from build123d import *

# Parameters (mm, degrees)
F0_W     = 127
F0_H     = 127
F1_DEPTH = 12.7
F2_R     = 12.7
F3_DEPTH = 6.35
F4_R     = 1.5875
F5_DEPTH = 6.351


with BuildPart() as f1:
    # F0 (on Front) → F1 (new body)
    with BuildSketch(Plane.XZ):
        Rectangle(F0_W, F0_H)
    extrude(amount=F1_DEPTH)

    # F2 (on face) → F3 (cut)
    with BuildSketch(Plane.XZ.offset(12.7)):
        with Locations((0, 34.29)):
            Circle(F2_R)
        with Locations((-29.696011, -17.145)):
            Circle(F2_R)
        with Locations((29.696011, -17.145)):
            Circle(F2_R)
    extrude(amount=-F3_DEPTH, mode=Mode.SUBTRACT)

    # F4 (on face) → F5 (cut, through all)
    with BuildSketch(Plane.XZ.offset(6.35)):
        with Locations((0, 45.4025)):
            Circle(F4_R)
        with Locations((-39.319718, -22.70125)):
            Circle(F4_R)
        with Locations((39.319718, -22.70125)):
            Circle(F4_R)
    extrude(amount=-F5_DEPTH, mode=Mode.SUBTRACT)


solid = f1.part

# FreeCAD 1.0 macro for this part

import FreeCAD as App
import Part
import Sketcher

V = App.Vector
Q = App.Units.Quantity


def add_polygon(sketch, points):
    """Adds a closed chain of lines whose ends are joined by coincident constraints."""
    first, n = sketch.GeometryCount, len(points)
    for a, b in zip(points, points[1:] + points[:1]):
        sketch.addGeometry(Part.LineSegment(App.Vector(*a, 0), App.Vector(*b, 0)), False)
    for i in range(n):
        sketch.addConstraint(Sketcher.Constraint("Coincident", first + i, 2, first + (i + 1) % n, 1))

doc = App.newDocument("Part")
params = doc.addObject("Spreadsheet::Sheet", "Params")
for row, (alias, value) in enumerate([
    ("sketch1_width", "5 in"),
    ("pad1_length", "0.5 in"),
    ("sketch2_diameter", "1 in"),
    ("pocket1_length", "0.25 in"),
    ("sketch3_diameter", "0.125 in"),
], start=1):
    params.set(f"A{row}", alias)
    params.set(f"B{row}", "=" + value)
    params.setAlias(f"B{row}", alias)

body = doc.addObject("PartDesign::Body", "Body")

# Sketch on XZ plane
sketch1 = body.newObject("Sketcher::SketchObject", "Sketch")
sketch1.AttachmentSupport = (doc.getObject("XZ_Plane"), [""])
sketch1.MapMode = "FlatFace"
add_polygon(sketch1, [(-63.5, 63.5), (-63.5, -63.5), (63.5, -63.5), (63.5, 63.5)])  # lines 0-3
sketch1.addConstraint([
    Sketcher.Constraint("Vertical", 0),
    Sketcher.Constraint("Horizontal", 1),
    Sketcher.Constraint("Vertical", 2),
    Sketcher.Constraint("Horizontal", 3),
    Sketcher.Constraint("Symmetric", 0, 2, 2, 2, -1, 1),
    Sketcher.Constraint("Equal", 3, 0),
    Sketcher.Constraint("DistanceX", 1, 1, 1, 2, Q("5 in")),
])
sketch1.setExpression("Constraints[10]", "Params.sketch1_width")
pad1 = body.newObject("PartDesign::Pad", "Pad")
pad1.Profile = sketch1
pad1.setExpression("Length", "Params.pad1_length")

# Sketch on XZ plane
sketch2 = body.newObject("Sketcher::SketchObject", "Sketch001")
sketch2.AttachmentSupport = (doc.getObject("XZ_Plane"), [""])
sketch2.MapMode = "FlatFace"
sketch2.AttachmentOffset = App.Placement(V(0, 0, 0.5 * 25.4), App.Rotation())
sketch2.addGeometry([
    Part.Circle(V(0, 34.29, 0), V(0, 0, 1), 12.7),
    Part.Circle(V(-29.696011, -17.145, 0), V(0, 0, 1), 12.7),
    Part.Circle(V(29.696011, -17.145, 0), V(0, 0, 1), 12.7),
], False)
sketch2.addConstraint([
    Sketcher.Constraint("Equal", 0, 1),
    Sketcher.Constraint("Equal", 1, 2),
    Sketcher.Constraint("Symmetric", 1, 3, 2, 3, -2),
    Sketcher.Constraint("PointOnObject", 0, 3, -2),
    Sketcher.Constraint("Diameter", 0, Q("1 in")),
    Sketcher.Constraint("DistanceY", -1, 1, 0, 3, Q("1.35 in")),
    Sketcher.Constraint("DistanceY", 1, 3, -1, 1, Q("0.675 in")),
    Sketcher.Constraint("DistanceX", 1, 3, -1, 1, 29.696011),
])
sketch2.setExpression("Constraints[4]", "Params.sketch2_diameter")
pocket1 = body.newObject("PartDesign::Pocket", "Pocket")
pocket1.Profile = sketch2
pocket1.setExpression("Length", "Params.pocket1_length")

# Sketch on XZ plane
sketch3 = body.newObject("Sketcher::SketchObject", "Sketch002")
sketch3.AttachmentSupport = (doc.getObject("XZ_Plane"), [""])
sketch3.MapMode = "FlatFace"
sketch3.AttachmentOffset = App.Placement(V(0, 0, 0.25 * 25.4), App.Rotation())
sketch3.addGeometry([
    Part.Circle(V(0, 45.4025, 0), V(0, 0, 1), 1.5875),
    Part.Circle(V(-39.319718, -22.70125, 0), V(0, 0, 1), 1.5875),
    Part.Circle(V(39.319718, -22.70125, 0), V(0, 0, 1), 1.5875),
], False)
sketch3.addConstraint([
    Sketcher.Constraint("Equal", 0, 1),
    Sketcher.Constraint("Equal", 1, 2),
    Sketcher.Constraint("Symmetric", 1, 3, 2, 3, -2),
    Sketcher.Constraint("PointOnObject", 0, 3, -2),
    Sketcher.Constraint("Diameter", 0, Q("0.125 in")),
    Sketcher.Constraint("DistanceY", -1, 1, 0, 3, Q("1.7875 in")),
    Sketcher.Constraint("DistanceX", 1, 3, -1, 1, 39.319718),
    Sketcher.Constraint("DistanceY", 1, 3, -1, 1, 22.70125),
])
sketch3.setExpression("Constraints[4]", "Params.sketch3_diameter")
pocket2 = body.newObject("PartDesign::Pocket", "Pocket001")
pocket2.Profile = sketch3
pocket2.Type = "ThroughAll"

doc.recompute()
